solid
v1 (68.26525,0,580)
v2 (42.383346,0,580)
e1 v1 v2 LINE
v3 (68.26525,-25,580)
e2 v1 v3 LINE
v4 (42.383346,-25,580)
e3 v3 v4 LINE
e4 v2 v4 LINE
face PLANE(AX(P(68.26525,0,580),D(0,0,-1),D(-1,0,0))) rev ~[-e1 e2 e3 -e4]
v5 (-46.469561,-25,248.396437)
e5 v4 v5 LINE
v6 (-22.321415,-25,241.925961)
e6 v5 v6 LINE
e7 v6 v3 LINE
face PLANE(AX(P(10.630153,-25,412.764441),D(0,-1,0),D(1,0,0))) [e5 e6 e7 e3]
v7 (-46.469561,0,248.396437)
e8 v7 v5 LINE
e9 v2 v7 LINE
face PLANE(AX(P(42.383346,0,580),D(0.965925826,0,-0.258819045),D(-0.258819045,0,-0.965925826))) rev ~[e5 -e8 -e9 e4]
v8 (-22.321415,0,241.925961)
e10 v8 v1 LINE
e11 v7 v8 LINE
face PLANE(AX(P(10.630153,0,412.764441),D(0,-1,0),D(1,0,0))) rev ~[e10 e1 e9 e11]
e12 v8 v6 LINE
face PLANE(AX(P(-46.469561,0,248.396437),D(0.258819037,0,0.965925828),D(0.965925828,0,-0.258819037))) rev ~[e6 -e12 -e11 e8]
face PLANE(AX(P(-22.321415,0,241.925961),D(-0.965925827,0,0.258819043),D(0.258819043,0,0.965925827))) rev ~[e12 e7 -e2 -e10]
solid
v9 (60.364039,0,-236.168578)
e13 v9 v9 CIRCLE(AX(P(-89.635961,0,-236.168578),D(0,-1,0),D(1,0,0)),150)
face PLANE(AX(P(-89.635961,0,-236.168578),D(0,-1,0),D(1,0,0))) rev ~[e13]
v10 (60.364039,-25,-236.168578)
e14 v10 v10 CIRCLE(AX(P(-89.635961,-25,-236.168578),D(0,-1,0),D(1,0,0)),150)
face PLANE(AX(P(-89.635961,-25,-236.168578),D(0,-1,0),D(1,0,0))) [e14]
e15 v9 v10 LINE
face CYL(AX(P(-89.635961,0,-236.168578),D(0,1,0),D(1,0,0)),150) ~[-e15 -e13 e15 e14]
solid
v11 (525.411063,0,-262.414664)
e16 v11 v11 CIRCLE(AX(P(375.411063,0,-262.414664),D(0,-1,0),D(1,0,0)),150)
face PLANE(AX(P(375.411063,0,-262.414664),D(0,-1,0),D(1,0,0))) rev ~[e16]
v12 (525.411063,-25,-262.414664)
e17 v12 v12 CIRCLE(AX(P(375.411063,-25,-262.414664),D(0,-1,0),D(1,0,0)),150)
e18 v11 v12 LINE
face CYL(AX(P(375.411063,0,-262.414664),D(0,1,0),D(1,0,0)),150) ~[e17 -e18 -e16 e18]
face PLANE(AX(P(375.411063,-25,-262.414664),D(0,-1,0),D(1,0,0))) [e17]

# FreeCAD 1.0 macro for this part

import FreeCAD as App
import Part
import Sketcher

V = App.Vector
Q = App.Units.Quantity

doc = App.newDocument("Part")
body = doc.addObject("PartDesign::Body", "Body")
body.AllowCompound = True

# Sketch on XZ plane
sketch1 = body.newObject("Sketcher::SketchObject", "Sketch")
sketch1.AttachmentSupport = (doc.getObject("XZ_Plane"), [""])
sketch1.MapMode = "FlatFace"
sketch1.addGeometry([
    Part.LineSegment(V(42.383346, 580, 0), V(-46.469561, 248.396437, 0)),  # 0
    Part.LineSegment(V(-46.469561, 248.396437, 0), V(-22.321415, 241.925961, 0)),  # 1
    Part.LineSegment(V(-22.321415, 241.925961, 0), V(68.26525, 580, 0)),  # 2
    Part.LineSegment(V(68.26525, 580, 0), V(42.383346, 580, 0)),  # 3
    Part.Circle(V(-89.635961, -236.168578, 0), V(0, 0, 1), 150),  # 4
    Part.Circle(V(375.411063, -262.414664, 0), V(0, 0, 1), 150),  # 5
], False)
sketch1.addConstraint([
    Sketcher.Constraint("Coincident", 0, 2, 1, 1),
    Sketcher.Constraint("Coincident", 1, 2, 2, 1),
    Sketcher.Constraint("Coincident", 2, 2, 3, 1),
    Sketcher.Constraint("Coincident", 3, 2, 0, 1),
    Sketcher.Constraint("Horizontal", 3),
    Sketcher.Constraint("Equal", 4, 5),
    Sketcher.Constraint("Perpendicular", 0, 1),
    Sketcher.Constraint("Perpendicular", 1, 2),
    Sketcher.Constraint("Diameter", 4, Q("300 mm")),
    Sketcher.Constraint("Angle", 0, Q("-105 deg")),
    Sketcher.Constraint("Distance", 1, Q("25 mm")),
    Sketcher.Constraint("Distance", 2, Q("350 mm")),
    Sketcher.Constraint("DistanceY", -1, 1, 2, 2, Q("580 mm")),
    Sketcher.Constraint("DistanceX", 4, 3, 0, 2, Q("43.1664 mm")),
    Sketcher.Constraint("DistanceY", 5, 3, 0, 2, Q("510.811101 mm")),
    Sketcher.Constraint("DistanceX", 4, 3, -1, 1, Q("89.635961 mm")),
    Sketcher.Constraint("DistanceY", 4, 3, -1, 1, Q("236.168578 mm")),
    Sketcher.Constraint("DistanceX", 1, 2, 5, 3, Q("397.732478 mm")),
])
pad1 = body.newObject("PartDesign::Pad", "Pad")
pad1.Profile = sketch1
pad1.Length = 25

doc.recompute()
